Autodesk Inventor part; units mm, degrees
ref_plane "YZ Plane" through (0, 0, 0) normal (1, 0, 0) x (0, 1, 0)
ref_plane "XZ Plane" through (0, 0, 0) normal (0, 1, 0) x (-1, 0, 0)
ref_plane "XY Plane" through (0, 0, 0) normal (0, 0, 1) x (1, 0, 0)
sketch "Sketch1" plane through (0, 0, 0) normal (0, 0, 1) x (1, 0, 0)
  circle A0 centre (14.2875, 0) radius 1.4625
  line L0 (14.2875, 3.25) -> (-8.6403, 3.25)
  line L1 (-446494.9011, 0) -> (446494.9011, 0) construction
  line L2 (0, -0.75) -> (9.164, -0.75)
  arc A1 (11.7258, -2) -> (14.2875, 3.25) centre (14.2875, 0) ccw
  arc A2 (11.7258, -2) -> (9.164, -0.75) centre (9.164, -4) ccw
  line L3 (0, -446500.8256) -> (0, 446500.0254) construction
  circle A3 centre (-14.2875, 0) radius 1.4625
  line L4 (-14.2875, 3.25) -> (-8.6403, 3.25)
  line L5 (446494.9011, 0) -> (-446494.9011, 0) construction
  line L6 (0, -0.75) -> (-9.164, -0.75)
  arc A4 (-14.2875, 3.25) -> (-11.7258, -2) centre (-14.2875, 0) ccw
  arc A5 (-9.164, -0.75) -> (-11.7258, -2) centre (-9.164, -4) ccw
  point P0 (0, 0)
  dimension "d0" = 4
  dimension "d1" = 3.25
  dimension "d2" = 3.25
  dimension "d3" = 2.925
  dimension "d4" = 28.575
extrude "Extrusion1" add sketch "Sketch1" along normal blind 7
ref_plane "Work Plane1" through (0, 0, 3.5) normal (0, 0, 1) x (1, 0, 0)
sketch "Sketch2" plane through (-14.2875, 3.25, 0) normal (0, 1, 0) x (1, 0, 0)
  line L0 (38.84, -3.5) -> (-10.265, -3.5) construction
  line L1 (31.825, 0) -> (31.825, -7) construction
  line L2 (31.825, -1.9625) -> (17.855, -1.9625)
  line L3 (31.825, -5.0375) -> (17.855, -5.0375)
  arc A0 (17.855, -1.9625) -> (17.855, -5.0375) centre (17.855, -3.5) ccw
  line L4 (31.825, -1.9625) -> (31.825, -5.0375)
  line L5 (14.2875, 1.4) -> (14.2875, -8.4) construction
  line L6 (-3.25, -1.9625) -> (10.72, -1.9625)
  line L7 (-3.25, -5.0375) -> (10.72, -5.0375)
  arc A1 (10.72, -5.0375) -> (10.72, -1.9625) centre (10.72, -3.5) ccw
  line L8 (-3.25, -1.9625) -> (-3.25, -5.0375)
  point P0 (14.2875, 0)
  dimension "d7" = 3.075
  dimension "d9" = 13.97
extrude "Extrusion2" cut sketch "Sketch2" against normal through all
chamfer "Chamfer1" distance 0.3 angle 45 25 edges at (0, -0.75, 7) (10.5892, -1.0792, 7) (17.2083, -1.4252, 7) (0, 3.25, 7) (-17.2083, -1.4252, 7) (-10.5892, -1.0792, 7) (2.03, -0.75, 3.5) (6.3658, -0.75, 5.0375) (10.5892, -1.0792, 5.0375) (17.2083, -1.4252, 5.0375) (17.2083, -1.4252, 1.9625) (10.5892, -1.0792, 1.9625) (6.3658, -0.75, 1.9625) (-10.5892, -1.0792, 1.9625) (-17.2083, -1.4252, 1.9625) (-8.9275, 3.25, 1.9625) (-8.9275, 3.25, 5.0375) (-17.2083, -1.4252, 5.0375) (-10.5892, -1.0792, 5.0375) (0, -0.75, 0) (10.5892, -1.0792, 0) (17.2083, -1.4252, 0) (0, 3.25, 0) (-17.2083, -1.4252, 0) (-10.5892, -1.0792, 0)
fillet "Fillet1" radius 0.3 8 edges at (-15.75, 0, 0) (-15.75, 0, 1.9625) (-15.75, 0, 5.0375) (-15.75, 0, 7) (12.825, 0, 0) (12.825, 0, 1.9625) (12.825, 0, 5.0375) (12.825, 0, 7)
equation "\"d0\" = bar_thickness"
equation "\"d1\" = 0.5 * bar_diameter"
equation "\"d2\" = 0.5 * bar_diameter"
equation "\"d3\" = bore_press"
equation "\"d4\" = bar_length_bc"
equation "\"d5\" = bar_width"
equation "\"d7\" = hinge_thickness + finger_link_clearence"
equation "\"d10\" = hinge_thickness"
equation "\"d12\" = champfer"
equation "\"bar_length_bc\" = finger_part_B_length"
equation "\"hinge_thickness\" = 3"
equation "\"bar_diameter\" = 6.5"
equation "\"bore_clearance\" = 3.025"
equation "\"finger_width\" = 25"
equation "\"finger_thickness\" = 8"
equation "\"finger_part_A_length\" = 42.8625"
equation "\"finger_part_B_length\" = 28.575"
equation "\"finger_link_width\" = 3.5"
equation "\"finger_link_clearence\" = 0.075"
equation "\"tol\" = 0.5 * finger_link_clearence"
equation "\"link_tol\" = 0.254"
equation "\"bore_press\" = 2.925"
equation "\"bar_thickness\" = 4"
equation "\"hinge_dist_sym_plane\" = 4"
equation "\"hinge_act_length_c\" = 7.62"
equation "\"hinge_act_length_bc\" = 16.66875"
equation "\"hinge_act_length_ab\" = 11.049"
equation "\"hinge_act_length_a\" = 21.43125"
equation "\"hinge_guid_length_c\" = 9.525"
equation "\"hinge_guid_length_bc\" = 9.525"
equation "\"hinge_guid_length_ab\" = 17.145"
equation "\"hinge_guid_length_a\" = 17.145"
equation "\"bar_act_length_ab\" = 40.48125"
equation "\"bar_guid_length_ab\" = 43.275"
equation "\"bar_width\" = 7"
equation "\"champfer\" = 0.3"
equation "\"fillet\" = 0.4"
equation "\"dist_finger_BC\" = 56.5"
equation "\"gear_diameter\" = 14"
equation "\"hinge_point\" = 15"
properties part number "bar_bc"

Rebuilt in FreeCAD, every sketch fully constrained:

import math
import FreeCAD as App
import Part
import Sketcher
from FreeCAD import Vector
Q = App.Units.Quantity


def edges_at(feature, points):
    """Names of the edges that pass closest to the given points."""
    edges = feature.Shape.Edges
    near = lambda p: min(range(len(edges)), key=lambda i: edges[i].distToShape(Part.Vertex(*p))[0])
    return sorted({f"Edge{near(p) + 1}" for p in points})

doc = App.newDocument("Part")
body = doc.addObject("PartDesign::Body", "Body")

# Sketch on XY plane
sketch1 = doc.addObject("Sketcher::SketchObject", "Sketch")
body.addObject(sketch1)
sketch1.AttachmentSupport = (doc.XY_Plane, [""])
sketch1.MapMode = "FlatFace"
sketch1.addGeometry(Part.ArcOfCircle(Part.Circle(Vector(14.3, 0, 0), Vector(0, 0, 1), 3.2), math.radians(-142), math.radians(90)), False)
sketch1.addGeometry(Part.LineSegment(Vector(14.3, 3.2, 0), Vector(-14.3, 3.2, 0)), False)
sketch1.addGeometry(Part.ArcOfCircle(Part.Circle(Vector(-14.3, 0, 0), Vector(0, 0, 1), 3.2), math.radians(90), math.radians(322)), False)
sketch1.addGeometry(Part.ArcOfCircle(Part.Circle(Vector(-9.2, -4, 0), Vector(0, 0, 1), 3.2), math.radians(90), math.radians(142)), False)
sketch1.addGeometry(Part.LineSegment(Vector(-9.2, -0.8, 0), Vector(9.2, -0.8, 0)), False)
sketch1.addGeometry(Part.ArcOfCircle(Part.Circle(Vector(9.2, -4, 0), Vector(0, 0, 1), 3.3), math.radians(38), math.radians(90)), False)
sketch1.addGeometry(Part.Circle(Vector(-14.3, 0, 0), Vector(0, 0, 1), 1.5), False)
sketch1.addGeometry(Part.Circle(Vector(14.3, 0, 0), Vector(0, 0, 1), 1.5), False)
sketch1.addConstraint(Sketcher.Constraint("Tangent", 0, 2, 1, 1))
sketch1.addConstraint(Sketcher.Constraint("Tangent", 1, 2, 2, 1))
sketch1.addConstraint(Sketcher.Constraint("Tangent", 2, 2, 3, 2))
sketch1.addConstraint(Sketcher.Constraint("Tangent", 3, 1, 4, 1))
sketch1.addConstraint(Sketcher.Constraint("Tangent", 4, 2, 5, 2))
sketch1.addConstraint(Sketcher.Constraint("Tangent", 5, 1, 0, 1))
sketch1.addConstraint(Sketcher.Constraint("Horizontal", 1))
sketch1.addConstraint(Sketcher.Constraint("Horizontal", 4))
sketch1.addConstraint(Sketcher.Constraint("Coincident", 6, 3, 2, 3))
sketch1.addConstraint(Sketcher.Constraint("Coincident", 7, 3, 0, 3))
sketch1.addConstraint(Sketcher.Constraint("Equal", 0, 2))
sketch1.addConstraint(Sketcher.Constraint("Equal", 2, 3))
sketch1.addConstraint(Sketcher.Constraint("Equal", 3, 5))
sketch1.addConstraint(Sketcher.Constraint("Equal", 6, 7))
sketch1.addConstraint(Sketcher.Constraint("Symmetric", 0, 3, 2, 3, -1, 1))
sketch1.addConstraint(Sketcher.Constraint("Diameter", 6, Q("2.925 mm")))
sketch1.addConstraint(Sketcher.Constraint("DistanceX", 1, 2, 1, 1, Q("1.125 in")))
sketch1.addConstraint(Sketcher.Constraint("Radius", 0, Q("3.25 mm")))
sketch1.addConstraint(Sketcher.Constraint("DistanceY", 3, 3, -1, 1, Q("4 mm")))
pad1 = doc.addObject("PartDesign::Pad", "Pad")
body.addObject(pad1)
pad1.Profile = sketch1
pad1.Length = Q("0.2755906 in")

# Sketch on XZ plane
sketch2 = doc.addObject("Sketcher::SketchObject", "Sketch001")
body.addObject(sketch2)
sketch2.AttachmentSupport = (doc.XZ_Plane, [""])
sketch2.MapMode = "FlatFace"
sketch2.AttachmentOffset = App.Placement(Vector(0, 0, -3.25), App.Rotation())
sketch2.addGeometry(Part.LineSegment(Vector(17.5, 5, 0), Vector(17.5, 2, 0)), False)
sketch2.addGeometry(Part.LineSegment(Vector(17.5, 2, 0), Vector(3.6, 2, 0)), False)
sketch2.addGeometry(Part.ArcOfCircle(Part.Circle(Vector(3.6, 3.5, 0), Vector(0, 0, 1), 1.5), math.radians(90), math.radians(270)), False)
sketch2.addGeometry(Part.LineSegment(Vector(3.6, 5, 0), Vector(17.5, 5, 0)), False)
sketch2.addGeometry(Part.LineSegment(Vector(-3.6, 2, 0), Vector(-17.5, 2, 0)), False)
sketch2.addGeometry(Part.LineSegment(Vector(-17.5, 2, 0), Vector(-17.5, 5, 0)), False)
sketch2.addGeometry(Part.LineSegment(Vector(-17.5, 5, 0), Vector(-3.6, 5, 0)), False)
sketch2.addGeometry(Part.ArcOfCircle(Part.Circle(Vector(-3.6, 3.5, 0), Vector(0, 0, 1), 1.5), math.radians(-90), math.radians(90)), False)
sketch2.addConstraint(Sketcher.Constraint("Coincident", 0, 2, 1, 1))
sketch2.addConstraint(Sketcher.Constraint("Tangent", 1, 2, 2, 2))
sketch2.addConstraint(Sketcher.Constraint("Tangent", 2, 1, 3, 1))
sketch2.addConstraint(Sketcher.Constraint("Coincident", 3, 2, 0, 1))
sketch2.addConstraint(Sketcher.Constraint("Coincident", 4, 2, 5, 1))
sketch2.addConstraint(Sketcher.Constraint("Coincident", 5, 2, 6, 1))
sketch2.addConstraint(Sketcher.Constraint("Tangent", 6, 2, 7, 2))
sketch2.addConstraint(Sketcher.Constraint("Tangent", 7, 1, 4, 1))
sketch2.addConstraint(Sketcher.Constraint("Vertical", 0))
sketch2.addConstraint(Sketcher.Constraint("Horizontal", 1))
sketch2.addConstraint(Sketcher.Constraint("Horizontal", 3))
sketch2.addConstraint(Sketcher.Constraint("Horizontal", 4))
sketch2.addConstraint(Sketcher.Constraint("Vertical", 5))
sketch2.addConstraint(Sketcher.Constraint("Horizontal", 6))
sketch2.addConstraint(Sketcher.Constraint("Equal", 2, 7))
sketch2.addConstraint(Sketcher.Constraint("Symmetric", 2, 3, 7, 3, -2))
sketch2.addConstraint(Sketcher.Constraint("Equal", 3, 4))
sketch2.addConstraint(Sketcher.Constraint("DistanceX", 1, 2, 1, 1, Q("0.55 in")))
sketch2.addConstraint(Sketcher.Constraint("Radius", 2, Q("1.5375 mm")))
sketch2.addConstraint(Sketcher.Constraint("DistanceY", -1, 1, 2, 3, Q("0.1378 in")))
sketch2.addConstraint(Sketcher.Constraint("DistanceX", 7, 3, 2, 3, Q("0.2809 in")))
pocket1 = doc.addObject("PartDesign::Pocket", "Pocket")
body.addObject(pocket1)
pocket1.Profile = sketch2
pocket1.Type = "ThroughAll"
pocket1.Reversed = True
doc.recompute()

chamfer = doc.addObject("PartDesign::Chamfer", "Chamfer")
body.addObject(chamfer)
chamfer.Base = (pocket1, edges_at(pocket1, [
    (0, -0.75, 7),
    (10.589, -1.079, 7),
    (17.208, -1.425, 7),
    (0, 3.25, 7),
    (-17.208, -1.425, 7),
    (-10.589, -1.079, 7),
    (2.03, -0.75, 3.5),
    (6.366, -0.75, 5.037),
    (10.589, -1.079, 5.037),
    (17.208, -1.425, 5.037),
    (17.208, -1.425, 1.962),
    (10.589, -1.079, 1.962),
    (6.366, -0.75, 1.962),
    (-10.589, -1.079, 1.962),
    (-17.208, -1.425, 1.962),
    (-8.928, 3.25, 1.962),
    (-8.928, 3.25, 5.037),
    (-17.208, -1.425, 5.037),
    (-10.589, -1.079, 5.037),
    (0, -0.75, 0),
    (10.589, -1.079, 0),
    (17.208, -1.425, 0),
    (0, 3.25, 0),
    (-17.208, -1.425, 0),
    (-10.589, -1.079, 0),
]))
chamfer.Size = Q("0.011811 in")
doc.recompute()

fillet = doc.addObject("PartDesign::Fillet", "Fillet")
body.addObject(fillet)
fillet.Base = (chamfer, edges_at(chamfer, [
    (-15.75, 0, 0),
    (-15.75, 0, 1.962),
    (-15.75, 0, 5.037),
    (-15.75, 0, 7),
    (12.825, 0, 0),
    (12.825, 0, 1.962),
    (12.825, 0, 5.037),
    (12.825, 0, 7),
]))
fillet.Radius = Q("0.011811 in")

doc.recompute()
